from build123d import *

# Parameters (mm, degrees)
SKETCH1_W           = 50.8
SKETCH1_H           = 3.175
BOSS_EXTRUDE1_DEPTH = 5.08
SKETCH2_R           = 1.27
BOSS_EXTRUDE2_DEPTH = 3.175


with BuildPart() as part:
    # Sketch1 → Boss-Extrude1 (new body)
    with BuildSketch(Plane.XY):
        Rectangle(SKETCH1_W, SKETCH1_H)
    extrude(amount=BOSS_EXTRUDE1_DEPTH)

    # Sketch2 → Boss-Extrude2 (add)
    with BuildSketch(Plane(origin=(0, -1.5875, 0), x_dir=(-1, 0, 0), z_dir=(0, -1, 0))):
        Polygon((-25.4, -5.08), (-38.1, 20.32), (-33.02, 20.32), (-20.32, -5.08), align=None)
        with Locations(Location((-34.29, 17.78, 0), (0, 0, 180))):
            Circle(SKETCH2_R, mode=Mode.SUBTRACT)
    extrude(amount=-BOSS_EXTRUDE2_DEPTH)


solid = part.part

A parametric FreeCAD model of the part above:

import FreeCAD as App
import Part
import Sketcher
Q = App.Units.Quantity


def add_polygon(sketch, points):
    """Adds a closed chain of lines whose ends are joined by coincident constraints."""
    first, n = sketch.GeometryCount, len(points)
    for a, b in zip(points, points[1:] + points[:1]):
        sketch.addGeometry(Part.LineSegment(App.Vector(*a, 0), App.Vector(*b, 0)), False)
    for i in range(n):
        sketch.addConstraint(Sketcher.Constraint("Coincident", first + i, 2, first + (i + 1) % n, 1))

doc = App.newDocument("Part")
body = doc.addObject("PartDesign::Body", "Body")

sketch1 = body.newObject("Sketcher::SketchObject", "Sketch")
sketch1.AttachmentSupport = (doc.getObject("XY_Plane"), [""])
sketch1.MapMode = "FlatFace"
add_polygon(sketch1, [(-25.4, 1.6), (-25.4, -1.6), (25.4, -1.6), (25.4, 1.6)])
sketch1.addConstraint([
    Sketcher.Constraint("Vertical", 0),
    Sketcher.Constraint("Horizontal", 1),
    Sketcher.Constraint("Vertical", 2),
    Sketcher.Constraint("Horizontal", 3),
    Sketcher.Constraint("Symmetric", 0, 2, 2, 2, -1, 1),
    Sketcher.Constraint("DistanceX", 1, 1, 1, 2, Q("2 in")),
    Sketcher.Constraint("DistanceY", 0, 2, 0, 1, Q("0.125 in")),
])
pad1 = body.newObject("PartDesign::Pad", "Pad")
pad1.Profile = sketch1
pad1.Length = Q("0.2 in")

sketch2 = body.newObject("Sketcher::SketchObject", "Sketch001")
sketch2.AttachmentSupport = (doc.getObject("XZ_Plane"), [""])
sketch2.MapMode = "FlatFace"
sketch2.AttachmentOffset = App.Placement(App.Vector(0, 0, 0.0625 * 25.4), App.Rotation())
add_polygon(sketch2, [(38.1, -20.3), (25.4, 5.1), (20.3, 5.1), (33, -20.3)])
sketch2.addGeometry(Part.Circle(App.Vector(34.3, -17.8, 0), App.Vector(0, 0, 1), 1.3), False)
sketch2.addConstraint([
    Sketcher.Constraint("Horizontal", 1),
    Sketcher.Constraint("Horizontal", 3),
    Sketcher.Constraint("Parallel", 0, 2),
    Sketcher.Constraint("Diameter", 4, Q("0.1 in")),
    Sketcher.Constraint("DistanceX", 1, 2, 1, 1, Q("0.2 in")),
    Sketcher.Constraint("DistanceX", -1, 1, 0, 2, Q("1 in")),
    Sketcher.Constraint("DistanceY", 2, 2, 0, 2, Q("1 in")),
    Sketcher.Constraint("DistanceY", 4, 3, -1, 1, Q("0.7 in")),
    Sketcher.Constraint("DistanceY", -1, 1, 0, 2, Q("0.2 in")),
    Sketcher.Constraint("DistanceX", -1, 1, 2, 2, Q("1.3 in")),
    Sketcher.Constraint("DistanceX", -1, 1, 4, 3, Q("1.35 in")),
])
pad2 = body.newObject("PartDesign::Pad", "Pad001")
pad2.Profile = sketch2
pad2.Length = Q("0.125 in")
pad2.Reversed = True

doc.recompute()
